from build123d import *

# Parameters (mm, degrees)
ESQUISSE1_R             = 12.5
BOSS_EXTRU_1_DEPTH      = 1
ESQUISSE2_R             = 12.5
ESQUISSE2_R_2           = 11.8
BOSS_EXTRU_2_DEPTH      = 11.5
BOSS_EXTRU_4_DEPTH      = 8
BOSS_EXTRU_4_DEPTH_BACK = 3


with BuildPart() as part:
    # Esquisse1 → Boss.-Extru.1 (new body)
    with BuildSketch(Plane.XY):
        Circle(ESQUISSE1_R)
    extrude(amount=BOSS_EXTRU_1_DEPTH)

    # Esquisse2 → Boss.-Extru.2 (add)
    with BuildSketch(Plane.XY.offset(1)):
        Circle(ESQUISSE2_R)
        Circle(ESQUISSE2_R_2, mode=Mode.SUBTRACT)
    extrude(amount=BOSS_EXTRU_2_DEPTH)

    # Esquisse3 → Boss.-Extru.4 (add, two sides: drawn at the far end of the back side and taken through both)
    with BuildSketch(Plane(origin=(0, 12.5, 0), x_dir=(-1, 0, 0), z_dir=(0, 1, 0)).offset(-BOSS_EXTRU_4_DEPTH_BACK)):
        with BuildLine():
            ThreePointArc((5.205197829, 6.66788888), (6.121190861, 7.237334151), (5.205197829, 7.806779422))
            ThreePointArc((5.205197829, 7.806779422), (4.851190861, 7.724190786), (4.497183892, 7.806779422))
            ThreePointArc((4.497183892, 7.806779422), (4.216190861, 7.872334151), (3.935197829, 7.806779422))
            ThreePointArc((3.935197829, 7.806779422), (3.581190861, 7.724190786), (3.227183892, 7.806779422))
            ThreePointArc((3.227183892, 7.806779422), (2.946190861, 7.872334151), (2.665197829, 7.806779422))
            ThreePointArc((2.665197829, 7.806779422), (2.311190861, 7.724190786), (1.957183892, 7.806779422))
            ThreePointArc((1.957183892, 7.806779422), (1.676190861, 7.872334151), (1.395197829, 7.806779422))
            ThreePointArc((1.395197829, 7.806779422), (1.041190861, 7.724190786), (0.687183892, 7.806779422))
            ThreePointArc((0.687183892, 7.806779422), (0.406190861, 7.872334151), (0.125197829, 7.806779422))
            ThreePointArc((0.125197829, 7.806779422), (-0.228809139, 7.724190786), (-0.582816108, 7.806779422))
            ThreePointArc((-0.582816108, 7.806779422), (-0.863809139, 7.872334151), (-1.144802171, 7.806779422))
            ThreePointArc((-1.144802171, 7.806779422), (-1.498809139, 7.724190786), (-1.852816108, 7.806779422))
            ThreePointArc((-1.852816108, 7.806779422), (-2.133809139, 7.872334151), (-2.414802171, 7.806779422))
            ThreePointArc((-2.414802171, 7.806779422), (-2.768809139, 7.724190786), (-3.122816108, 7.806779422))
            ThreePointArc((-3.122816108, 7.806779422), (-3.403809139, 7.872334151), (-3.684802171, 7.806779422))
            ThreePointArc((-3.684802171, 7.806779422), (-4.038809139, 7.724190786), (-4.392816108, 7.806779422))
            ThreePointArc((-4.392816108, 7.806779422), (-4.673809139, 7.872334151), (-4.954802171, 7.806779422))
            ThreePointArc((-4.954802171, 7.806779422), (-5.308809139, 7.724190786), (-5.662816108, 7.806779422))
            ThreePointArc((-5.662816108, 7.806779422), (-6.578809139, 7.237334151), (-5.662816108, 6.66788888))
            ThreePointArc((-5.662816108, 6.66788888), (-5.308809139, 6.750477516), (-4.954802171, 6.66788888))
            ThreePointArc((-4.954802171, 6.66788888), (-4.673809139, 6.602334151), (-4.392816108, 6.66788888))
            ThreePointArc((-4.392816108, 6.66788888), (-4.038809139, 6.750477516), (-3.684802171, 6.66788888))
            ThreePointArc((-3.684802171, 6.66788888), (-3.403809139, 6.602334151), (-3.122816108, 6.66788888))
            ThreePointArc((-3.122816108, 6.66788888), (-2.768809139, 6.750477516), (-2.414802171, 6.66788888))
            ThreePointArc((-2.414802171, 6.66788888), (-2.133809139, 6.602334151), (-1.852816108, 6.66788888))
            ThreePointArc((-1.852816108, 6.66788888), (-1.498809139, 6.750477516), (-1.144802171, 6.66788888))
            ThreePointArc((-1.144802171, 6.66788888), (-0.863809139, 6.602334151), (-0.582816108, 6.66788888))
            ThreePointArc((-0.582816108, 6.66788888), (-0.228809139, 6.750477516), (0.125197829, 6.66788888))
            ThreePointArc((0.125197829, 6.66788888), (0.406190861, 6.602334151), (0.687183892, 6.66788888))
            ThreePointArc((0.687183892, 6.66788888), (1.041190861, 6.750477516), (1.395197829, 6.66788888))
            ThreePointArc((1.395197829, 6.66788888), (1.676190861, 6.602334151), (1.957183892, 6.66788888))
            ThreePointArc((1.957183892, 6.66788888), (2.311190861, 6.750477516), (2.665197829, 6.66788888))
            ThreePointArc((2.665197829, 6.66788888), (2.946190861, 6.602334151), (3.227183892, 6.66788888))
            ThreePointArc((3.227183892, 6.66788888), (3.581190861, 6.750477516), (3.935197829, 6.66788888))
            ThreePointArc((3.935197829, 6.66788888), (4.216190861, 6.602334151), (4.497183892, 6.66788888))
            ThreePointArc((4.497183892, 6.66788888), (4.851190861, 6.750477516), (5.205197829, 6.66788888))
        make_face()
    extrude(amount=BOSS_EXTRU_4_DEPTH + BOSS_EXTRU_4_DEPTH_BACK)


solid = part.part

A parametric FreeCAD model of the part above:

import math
import FreeCAD as App
import Part
import Sketcher

doc = App.newDocument("Part")
body = doc.addObject("PartDesign::Body", "Body")

# Sketch on XY plane
sketch1 = body.newObject("Sketcher::SketchObject", "Sketch")
sketch1.AttachmentSupport = (doc.getObject("XY_Plane"), [""])
sketch1.MapMode = "FlatFace"
sketch1.addGeometry(Part.Circle(App.Vector(0, 0, 0), App.Vector(0, 0, 1), 12.5), False)
sketch1.addConstraint(Sketcher.Constraint("Coincident", 0, 3, -1, 1))
sketch1.addConstraint(Sketcher.Constraint("Diameter", 0, 25.0))
pad1 = body.newObject("PartDesign::Pad", "Pad")
pad1.Profile = sketch1
pad1.Length = 1

# Sketch on XY plane
sketch2 = body.newObject("Sketcher::SketchObject", "Sketch001")
sketch2.AttachmentSupport = (doc.getObject("XY_Plane"), [""])
sketch2.MapMode = "FlatFace"
sketch2.AttachmentOffset = App.Placement(App.Vector(0, 0, 1), App.Rotation())
sketch2.addGeometry(Part.Circle(App.Vector(0, 0, 0), App.Vector(0, 0, 1), 12.5), False)
sketch2.addGeometry(Part.Circle(App.Vector(0, 0, 0), App.Vector(0, 0, 1), 11.8), False)
sketch2.addConstraint(Sketcher.Constraint("Coincident", 0, 3, -1, 1))
sketch2.addConstraint(Sketcher.Constraint("Coincident", 1, 3, -1, 1))
sketch2.addConstraint(Sketcher.Constraint("Diameter", 0, 25.0))
sketch2.addConstraint(Sketcher.Constraint("Diameter", 1, 23.6))
pad2 = body.newObject("PartDesign::Pad", "Pad001")
pad2.Profile = sketch2
pad2.Length = 11.5

# Sketch on XZ plane
sketch3 = body.newObject("Sketcher::SketchObject", "Sketch002")
sketch3.AttachmentSupport = (doc.getObject("XZ_Plane"), [""])
sketch3.MapMode = "FlatFace"
sketch3.AttachmentOffset = App.Placement(App.Vector(0, 0, -12.5), App.Rotation())
sketch3.addGeometry(Part.ArcOfCircle(Part.Circle(App.Vector(-5.486191, 7.237334, 0), App.Vector(0, 0, 1), 0.635), math.radians(63.735943), math.radians(296.264057)), False)
sketch3.addGeometry(Part.ArcOfCircle(Part.Circle(App.Vector(-4.851191, 8.524191, 0), App.Vector(0, 0, 1), 0.8), math.radians(-116.264057), math.radians(-63.735943)), False)
sketch3.addGeometry(Part.ArcOfCircle(Part.Circle(App.Vector(-4.216191, 7.237334, 0), App.Vector(0, 0, 1), 0.635), math.radians(63.735943), math.radians(116.264056)), False)
sketch3.addGeometry(Part.ArcOfCircle(Part.Circle(App.Vector(-3.581191, 8.524191, 0), App.Vector(0, 0, 1), 0.8), math.radians(-116.264057), math.radians(-63.735943)), False)
sketch3.addGeometry(Part.ArcOfCircle(Part.Circle(App.Vector(-2.946191, 7.237334, 0), App.Vector(0, 0, 1), 0.635), math.radians(63.735944), math.radians(116.264057)), False)
sketch3.addGeometry(Part.ArcOfCircle(Part.Circle(App.Vector(-2.311191, 8.524191, 0), App.Vector(0, 0, 1), 0.8), math.radians(-116.264057), math.radians(-63.735943)), False)
sketch3.addGeometry(Part.ArcOfCircle(Part.Circle(App.Vector(-1.676191, 7.237334, 0), App.Vector(0, 0, 1), 0.635), math.radians(63.735944), math.radians(116.264057)), False)
sketch3.addGeometry(Part.ArcOfCircle(Part.Circle(App.Vector(-1.041191, 8.524191, 0), App.Vector(0, 0, 1), 0.8), math.radians(-116.264057), math.radians(-63.735943)), False)
sketch3.addGeometry(Part.ArcOfCircle(Part.Circle(App.Vector(-0.406191, 7.237334, 0), App.Vector(0, 0, 1), 0.635), math.radians(63.735944), math.radians(116.264057)), False)
sketch3.addGeometry(Part.ArcOfCircle(Part.Circle(App.Vector(0.228809, 8.524191, 0), App.Vector(0, 0, 1), 0.8), math.radians(-116.264057), math.radians(-63.735943)), False)
sketch3.addGeometry(Part.ArcOfCircle(Part.Circle(App.Vector(0.863809, 7.237334, 0), App.Vector(0, 0, 1), 0.635), math.radians(63.735944), math.radians(116.264057)), False)
sketch3.addGeometry(Part.ArcOfCircle(Part.Circle(App.Vector(1.498809, 8.524191, 0), App.Vector(0, 0, 1), 0.8), math.radians(-116.264057), math.radians(-63.735943)), False)
sketch3.addGeometry(Part.ArcOfCircle(Part.Circle(App.Vector(2.133809, 7.237334, 0), App.Vector(0, 0, 1), 0.635), math.radians(63.735944), math.radians(116.264057)), False)
sketch3.addGeometry(Part.ArcOfCircle(Part.Circle(App.Vector(2.768809, 8.524191, 0), App.Vector(0, 0, 1), 0.8), math.radians(-116.264057), math.radians(-63.735943)), False)
sketch3.addGeometry(Part.ArcOfCircle(Part.Circle(App.Vector(3.403809, 7.237334, 0), App.Vector(0, 0, 1), 0.635), math.radians(63.735943), math.radians(116.264056)), False)
sketch3.addGeometry(Part.ArcOfCircle(Part.Circle(App.Vector(4.038809, 8.524191, 0), App.Vector(0, 0, 1), 0.8), math.radians(-116.264057), math.radians(-63.735943)), False)
sketch3.addGeometry(Part.ArcOfCircle(Part.Circle(App.Vector(4.673809, 7.237334, 0), App.Vector(0, 0, 1), 0.635), math.radians(63.735943), math.radians(116.264056)), False)
sketch3.addGeometry(Part.ArcOfCircle(Part.Circle(App.Vector(5.308809, 8.524191, 0), App.Vector(0, 0, 1), 0.8), math.radians(-116.264057), math.radians(-63.735943)), False)
sketch3.addGeometry(Part.ArcOfCircle(Part.Circle(App.Vector(5.943809, 7.237334, 0), App.Vector(0, 0, 1), 0.635), math.radians(-116.264057), math.radians(116.264057)), False)
sketch3.addGeometry(Part.ArcOfCircle(Part.Circle(App.Vector(5.308809, 5.950478, 0), App.Vector(0, 0, 1), 0.8), math.radians(63.735943), math.radians(116.264057)), False)
sketch3.addGeometry(Part.ArcOfCircle(Part.Circle(App.Vector(4.673809, 7.237334, 0), App.Vector(0, 0, 1), 0.635), math.radians(-116.264056), math.radians(-63.735943)), False)
sketch3.addGeometry(Part.ArcOfCircle(Part.Circle(App.Vector(4.038809, 5.950478, 0), App.Vector(0, 0, 1), 0.8), math.radians(63.735943), math.radians(116.264057)), False)
sketch3.addGeometry(Part.ArcOfCircle(Part.Circle(App.Vector(3.403809, 7.237334, 0), App.Vector(0, 0, 1), 0.635), math.radians(-116.264056), math.radians(-63.735943)), False)
sketch3.addGeometry(Part.ArcOfCircle(Part.Circle(App.Vector(2.768809, 5.950478, 0), App.Vector(0, 0, 1), 0.8), math.radians(63.735943), math.radians(116.264057)), False)
sketch3.addGeometry(Part.ArcOfCircle(Part.Circle(App.Vector(2.133809, 7.237334, 0), App.Vector(0, 0, 1), 0.635), math.radians(-116.264057), math.radians(-63.735944)), False)
sketch3.addGeometry(Part.ArcOfCircle(Part.Circle(App.Vector(1.498809, 5.950478, 0), App.Vector(0, 0, 1), 0.8), math.radians(63.735943), math.radians(116.264057)), False)
sketch3.addGeometry(Part.ArcOfCircle(Part.Circle(App.Vector(0.863809, 7.237334, 0), App.Vector(0, 0, 1), 0.635), math.radians(-116.264057), math.radians(-63.735944)), False)
sketch3.addGeometry(Part.ArcOfCircle(Part.Circle(App.Vector(0.228809, 5.950478, 0), App.Vector(0, 0, 1), 0.8), math.radians(63.735943), math.radians(116.264057)), False)
sketch3.addGeometry(Part.ArcOfCircle(Part.Circle(App.Vector(-0.406191, 7.237334, 0), App.Vector(0, 0, 1), 0.635), math.radians(-116.264057), math.radians(-63.735944)), False)
sketch3.addGeometry(Part.ArcOfCircle(Part.Circle(App.Vector(-1.041191, 5.950478, 0), App.Vector(0, 0, 1), 0.8), math.radians(63.735943), math.radians(116.264057)), False)
sketch3.addGeometry(Part.ArcOfCircle(Part.Circle(App.Vector(-1.676191, 7.237334, 0), App.Vector(0, 0, 1), 0.635), math.radians(-116.264057), math.radians(-63.735944)), False)
sketch3.addGeometry(Part.ArcOfCircle(Part.Circle(App.Vector(-2.311191, 5.950478, 0), App.Vector(0, 0, 1), 0.8), math.radians(63.735943), math.radians(116.264057)), False)
sketch3.addGeometry(Part.ArcOfCircle(Part.Circle(App.Vector(-2.946191, 7.237334, 0), App.Vector(0, 0, 1), 0.635), math.radians(-116.264057), math.radians(-63.735944)), False)
sketch3.addGeometry(Part.ArcOfCircle(Part.Circle(App.Vector(-3.581191, 5.950478, 0), App.Vector(0, 0, 1), 0.8), math.radians(63.735943), math.radians(116.264057)), False)
sketch3.addGeometry(Part.ArcOfCircle(Part.Circle(App.Vector(-4.216191, 7.237334, 0), App.Vector(0, 0, 1), 0.635), math.radians(-116.264056), math.radians(-63.735943)), False)
sketch3.addGeometry(Part.ArcOfCircle(Part.Circle(App.Vector(-4.851191, 5.950478, 0), App.Vector(0, 0, 1), 0.8), math.radians(63.735943), math.radians(116.264057)), False)
sketch3.addConstraint(Sketcher.Constraint("Tangent", 0, 1, 1, 1))
sketch3.addConstraint(Sketcher.Constraint("Tangent", 1, 2, 2, 2))
sketch3.addConstraint(Sketcher.Constraint("Tangent", 2, 1, 3, 1))
sketch3.addConstraint(Sketcher.Constraint("Tangent", 3, 2, 4, 2))
sketch3.addConstraint(Sketcher.Constraint("Tangent", 4, 1, 5, 1))
sketch3.addConstraint(Sketcher.Constraint("Tangent", 5, 2, 6, 2))
sketch3.addConstraint(Sketcher.Constraint("Tangent", 6, 1, 7, 1))
sketch3.addConstraint(Sketcher.Constraint("Tangent", 7, 2, 8, 2))
sketch3.addConstraint(Sketcher.Constraint("Tangent", 8, 1, 9, 1))
sketch3.addConstraint(Sketcher.Constraint("Tangent", 9, 2, 10, 2))
sketch3.addConstraint(Sketcher.Constraint("Tangent", 10, 1, 11, 1))
sketch3.addConstraint(Sketcher.Constraint("Tangent", 11, 2, 12, 2))
sketch3.addConstraint(Sketcher.Constraint("Tangent", 12, 1, 13, 1))
sketch3.addConstraint(Sketcher.Constraint("Tangent", 13, 2, 14, 2))
sketch3.addConstraint(Sketcher.Constraint("Tangent", 14, 1, 15, 1))
sketch3.addConstraint(Sketcher.Constraint("Tangent", 15, 2, 16, 2))
sketch3.addConstraint(Sketcher.Constraint("Tangent", 16, 1, 17, 1))
sketch3.addConstraint(Sketcher.Constraint("Tangent", 17, 2, 18, 2))
sketch3.addConstraint(Sketcher.Constraint("Tangent", 18, 1, 19, 1))
sketch3.addConstraint(Sketcher.Constraint("Tangent", 19, 2, 20, 2))
sketch3.addConstraint(Sketcher.Constraint("Tangent", 20, 1, 21, 1))
sketch3.addConstraint(Sketcher.Constraint("Tangent", 21, 2, 22, 2))
sketch3.addConstraint(Sketcher.Constraint("Tangent", 22, 1, 23, 1))
sketch3.addConstraint(Sketcher.Constraint("Tangent", 23, 2, 24, 2))
sketch3.addConstraint(Sketcher.Constraint("Tangent", 24, 1, 25, 1))
sketch3.addConstraint(Sketcher.Constraint("Tangent", 25, 2, 26, 2))
sketch3.addConstraint(Sketcher.Constraint("Tangent", 26, 1, 27, 1))
sketch3.addConstraint(Sketcher.Constraint("Tangent", 27, 2, 28, 2))
sketch3.addConstraint(Sketcher.Constraint("Tangent", 28, 1, 29, 1))
sketch3.addConstraint(Sketcher.Constraint("Tangent", 29, 2, 30, 2))
sketch3.addConstraint(Sketcher.Constraint("Tangent", 30, 1, 31, 1))
sketch3.addConstraint(Sketcher.Constraint("Tangent", 31, 2, 32, 2))
sketch3.addConstraint(Sketcher.Constraint("Tangent", 32, 1, 33, 1))
sketch3.addConstraint(Sketcher.Constraint("Tangent", 33, 2, 34, 2))
sketch3.addConstraint(Sketcher.Constraint("Tangent", 34, 1, 35, 1))
sketch3.addConstraint(Sketcher.Constraint("Tangent", 35, 2, 0, 2))
sketch3.addConstraint(Sketcher.Constraint("Coincident", 20, 3, 16, 3))
sketch3.addConstraint(Sketcher.Constraint("Coincident", 22, 3, 14, 3))
sketch3.addConstraint(Sketcher.Constraint("Coincident", 24, 3, 12, 3))
sketch3.addConstraint(Sketcher.Constraint("Coincident", 26, 3, 10, 3))
sketch3.addConstraint(Sketcher.Constraint("Coincident", 28, 3, 8, 3))
sketch3.addConstraint(Sketcher.Constraint("Coincident", 30, 3, 6, 3))
sketch3.addConstraint(Sketcher.Constraint("Coincident", 32, 3, 4, 3))
sketch3.addConstraint(Sketcher.Constraint("Coincident", 34, 3, 2, 3))
sketch3.addConstraint(Sketcher.Constraint("Equal", 0, 2))
sketch3.addConstraint(Sketcher.Constraint("Equal", 1, 3))
sketch3.addConstraint(Sketcher.Constraint("Equal", 2, 4))
sketch3.addConstraint(Sketcher.Constraint("Equal", 3, 5))
sketch3.addConstraint(Sketcher.Constraint("Equal", 4, 6))
sketch3.addConstraint(Sketcher.Constraint("Equal", 5, 7))
sketch3.addConstraint(Sketcher.Constraint("Equal", 6, 8))
sketch3.addConstraint(Sketcher.Constraint("Equal", 7, 9))
sketch3.addConstraint(Sketcher.Constraint("Equal", 8, 10))
sketch3.addConstraint(Sketcher.Constraint("Equal", 9, 11))
sketch3.addConstraint(Sketcher.Constraint("Equal", 10, 12))
sketch3.addConstraint(Sketcher.Constraint("Equal", 11, 13))
sketch3.addConstraint(Sketcher.Constraint("Equal", 12, 14))
sketch3.addConstraint(Sketcher.Constraint("Equal", 13, 15))
sketch3.addConstraint(Sketcher.Constraint("Equal", 14, 16))
sketch3.addConstraint(Sketcher.Constraint("Equal", 15, 17))
sketch3.addConstraint(Sketcher.Constraint("Equal", 16, 18))
sketch3.addConstraint(Sketcher.Constraint("Equal", 17, 19))
sketch3.addConstraint(Sketcher.Constraint("Equal", 18, 20))
sketch3.addConstraint(Sketcher.Constraint("Equal", 19, 21))
sketch3.addConstraint(Sketcher.Constraint("Equal", 20, 22))
sketch3.addConstraint(Sketcher.Constraint("Equal", 21, 23))
sketch3.addConstraint(Sketcher.Constraint("Equal", 22, 24))
sketch3.addConstraint(Sketcher.Constraint("Equal", 23, 25))
sketch3.addConstraint(Sketcher.Constraint("Equal", 24, 26))
sketch3.addConstraint(Sketcher.Constraint("Equal", 25, 27))
sketch3.addConstraint(Sketcher.Constraint("Equal", 26, 28))
sketch3.addConstraint(Sketcher.Constraint("Equal", 27, 29))
sketch3.addConstraint(Sketcher.Constraint("Equal", 28, 30))
sketch3.addConstraint(Sketcher.Constraint("Equal", 29, 31))
sketch3.addConstraint(Sketcher.Constraint("Equal", 30, 32))
sketch3.addConstraint(Sketcher.Constraint("Equal", 31, 33))
sketch3.addConstraint(Sketcher.Constraint("Equal", 32, 34))
sketch3.addConstraint(Sketcher.Constraint("Equal", 33, 35))
sketch3.addConstraint(Sketcher.Constraint("Horizontal", 0, 3, 2, 3))
sketch3.addConstraint(Sketcher.Constraint("Horizontal", 1, 3, 3, 3))
sketch3.addConstraint(Sketcher.Constraint("Horizontal", 2, 3, 4, 3))
sketch3.addConstraint(Sketcher.Constraint("Horizontal", 3, 3, 5, 3))
sketch3.addConstraint(Sketcher.Constraint("Horizontal", 4, 3, 6, 3))
sketch3.addConstraint(Sketcher.Constraint("Horizontal", 5, 3, 7, 3))
sketch3.addConstraint(Sketcher.Constraint("Horizontal", 6, 3, 8, 3))
sketch3.addConstraint(Sketcher.Constraint("Horizontal", 7, 3, 9, 3))
sketch3.addConstraint(Sketcher.Constraint("Horizontal", 8, 3, 10, 3))
sketch3.addConstraint(Sketcher.Constraint("Horizontal", 9, 3, 11, 3))
sketch3.addConstraint(Sketcher.Constraint("Horizontal", 10, 3, 12, 3))
sketch3.addConstraint(Sketcher.Constraint("Horizontal", 11, 3, 13, 3))
sketch3.addConstraint(Sketcher.Constraint("Horizontal", 12, 3, 14, 3))
sketch3.addConstraint(Sketcher.Constraint("Horizontal", 13, 3, 15, 3))
sketch3.addConstraint(Sketcher.Constraint("Horizontal", 14, 3, 16, 3))
sketch3.addConstraint(Sketcher.Constraint("Horizontal", 15, 3, 17, 3))
sketch3.addConstraint(Sketcher.Constraint("Horizontal", 16, 3, 18, 3))
sketch3.addConstraint(Sketcher.Constraint("Radius", 1, 0.8))
sketch3.addConstraint(Sketcher.Constraint("Radius", 0, 0.635))
sketch3.addConstraint(Sketcher.Constraint("DistanceX", 0, 3, -1, 1, 5.486191))
sketch3.addConstraint(Sketcher.Constraint("DistanceX", 1, 3, -1, 1, 4.851191))
sketch3.addConstraint(Sketcher.Constraint("DistanceY", -1, 1, 1, 3, 8.524191))
pad3 = body.newObject("PartDesign::Pad", "Pad002")
pad3.Profile = sketch3
pad3.Type = "TwoLengths"
pad3.Length = 8
pad3.Length2 = 3
pad3.Reversed = True

doc.recompute()
